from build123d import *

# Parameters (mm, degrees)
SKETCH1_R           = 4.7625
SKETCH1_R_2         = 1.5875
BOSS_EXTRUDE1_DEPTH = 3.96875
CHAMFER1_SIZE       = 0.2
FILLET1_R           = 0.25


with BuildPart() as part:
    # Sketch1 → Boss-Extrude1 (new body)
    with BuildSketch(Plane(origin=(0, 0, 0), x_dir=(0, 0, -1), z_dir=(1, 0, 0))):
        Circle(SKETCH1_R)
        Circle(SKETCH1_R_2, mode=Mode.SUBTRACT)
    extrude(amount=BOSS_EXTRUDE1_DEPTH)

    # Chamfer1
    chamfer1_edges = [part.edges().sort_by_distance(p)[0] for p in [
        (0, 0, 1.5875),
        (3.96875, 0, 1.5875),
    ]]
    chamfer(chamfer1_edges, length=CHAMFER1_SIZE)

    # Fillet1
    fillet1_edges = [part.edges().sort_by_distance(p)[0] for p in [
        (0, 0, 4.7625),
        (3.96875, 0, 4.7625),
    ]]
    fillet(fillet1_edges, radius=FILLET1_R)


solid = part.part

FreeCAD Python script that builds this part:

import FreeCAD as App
import Part
import Sketcher
Q = App.Units.Quantity


def edges_at(feature, points):
    """Names of the edges that pass closest to the given points."""
    edges = feature.Shape.Edges
    near = lambda p: min(range(len(edges)), key=lambda i: edges[i].distToShape(Part.Vertex(*p))[0])
    return sorted({f"Edge{near(p) + 1}" for p in points})

doc = App.newDocument("Part")
body = doc.addObject("PartDesign::Body", "Body")

sketch1 = doc.addObject("Sketcher::SketchObject", "Sketch")
body.addObject(sketch1)
sketch1.AttachmentSupport = (doc.YZ_Plane, [""])
sketch1.MapMode = "FlatFace"
sketch1.addGeometry(Part.Circle(App.Vector(0, 0, 0), App.Vector(0, 0, 1), 4.8), False)
sketch1.addGeometry(Part.Circle(App.Vector(0, 0, 0), App.Vector(0, 0, 1), 1.6), False)
sketch1.addConstraint(Sketcher.Constraint("Coincident", 0, 3, -1, 1))
sketch1.addConstraint(Sketcher.Constraint("Coincident", 1, 3, -1, 1))
sketch1.addConstraint(Sketcher.Constraint("Diameter", 0, Q("0.375 in")))
sketch1.addConstraint(Sketcher.Constraint("Diameter", 1, Q("0.125 in")))
pad1 = doc.addObject("PartDesign::Pad", "Pad")
body.addObject(pad1)
pad1.Profile = sketch1
pad1.Length = Q("0.15625 in")
doc.recompute()

chamfer = doc.addObject("PartDesign::Chamfer", "Chamfer")
body.addObject(chamfer)
chamfer.Base = (pad1, edges_at(pad1, [(0, 0, 1.587), (3.969, 0, 1.587)]))
chamfer.Size = 0.2
doc.recompute()

fillet = doc.addObject("PartDesign::Fillet", "Fillet")
body.addObject(fillet)
fillet.Base = (chamfer, edges_at(chamfer, [(0, 0, 4.763), (3.969, 0, 4.763)]))
fillet.Radius = 0.25

doc.recompute()
